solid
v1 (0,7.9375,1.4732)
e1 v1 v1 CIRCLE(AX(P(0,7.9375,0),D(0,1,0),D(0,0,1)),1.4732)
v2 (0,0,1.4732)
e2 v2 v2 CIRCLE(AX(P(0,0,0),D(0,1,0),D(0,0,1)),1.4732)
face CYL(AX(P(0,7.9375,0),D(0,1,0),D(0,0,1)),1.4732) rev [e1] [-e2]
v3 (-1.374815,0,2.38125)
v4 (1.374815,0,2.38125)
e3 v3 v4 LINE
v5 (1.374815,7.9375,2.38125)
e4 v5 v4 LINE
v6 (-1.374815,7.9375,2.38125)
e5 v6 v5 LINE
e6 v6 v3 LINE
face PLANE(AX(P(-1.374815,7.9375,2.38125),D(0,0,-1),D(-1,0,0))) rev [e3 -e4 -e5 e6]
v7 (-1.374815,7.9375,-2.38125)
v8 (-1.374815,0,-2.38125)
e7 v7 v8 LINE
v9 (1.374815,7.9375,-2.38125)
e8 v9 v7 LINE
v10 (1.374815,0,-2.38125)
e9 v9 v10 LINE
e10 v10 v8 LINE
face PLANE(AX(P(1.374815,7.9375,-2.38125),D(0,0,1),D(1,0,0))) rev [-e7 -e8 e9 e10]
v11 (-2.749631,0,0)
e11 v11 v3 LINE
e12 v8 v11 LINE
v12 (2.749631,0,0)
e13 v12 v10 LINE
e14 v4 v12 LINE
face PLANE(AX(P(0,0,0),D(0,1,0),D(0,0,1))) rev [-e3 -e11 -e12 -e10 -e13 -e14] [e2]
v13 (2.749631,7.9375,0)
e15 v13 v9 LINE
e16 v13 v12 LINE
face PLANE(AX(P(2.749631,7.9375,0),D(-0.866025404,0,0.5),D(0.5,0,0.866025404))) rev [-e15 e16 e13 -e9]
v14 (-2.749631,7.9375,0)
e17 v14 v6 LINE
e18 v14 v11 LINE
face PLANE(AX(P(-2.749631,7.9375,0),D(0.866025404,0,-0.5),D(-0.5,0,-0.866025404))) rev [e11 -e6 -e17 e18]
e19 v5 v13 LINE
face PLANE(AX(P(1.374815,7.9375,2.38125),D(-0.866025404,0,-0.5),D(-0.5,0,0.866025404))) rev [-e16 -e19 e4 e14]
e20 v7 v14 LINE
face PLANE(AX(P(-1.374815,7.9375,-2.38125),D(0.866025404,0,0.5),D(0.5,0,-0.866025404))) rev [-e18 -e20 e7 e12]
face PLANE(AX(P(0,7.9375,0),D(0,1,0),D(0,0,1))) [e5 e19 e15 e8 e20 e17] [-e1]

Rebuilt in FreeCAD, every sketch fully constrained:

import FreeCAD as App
import Part
import Sketcher
from FreeCAD import Vector
Q = App.Units.Quantity


def add_polygon(sketch, points):
    """Adds a closed chain of lines whose ends are joined by coincident constraints."""
    first, n = sketch.GeometryCount, len(points)
    for a, b in zip(points, points[1:] + points[:1]):
        sketch.addGeometry(Part.LineSegment(App.Vector(*a, 0), App.Vector(*b, 0)), False)
    for i in range(n):
        sketch.addConstraint(Sketcher.Constraint("Coincident", first + i, 2, first + (i + 1) % n, 1))

doc = App.newDocument("Part")
body = doc.addObject("PartDesign::Body", "Body")

# Sketch on XZ plane
sketch1 = body.newObject("Sketcher::SketchObject", "Sketch")
sketch1.AttachmentSupport = (doc.getObject("XZ_Plane"), [""])
sketch1.MapMode = "FlatFace"
add_polygon(sketch1, [(2.7, 0), (1.4, -2.4), (-1.4, -2.4), (-2.7, 0), (-1.4, 2.4), (1.4, 2.4)])  # lines 0-5
sketch1.addConstraint([
    Sketcher.Constraint("Horizontal", 1),
    Sketcher.Constraint("Horizontal", 4),
    Sketcher.Constraint("Symmetric", 0, 2, 3, 2, -1, 1),
    Sketcher.Constraint("Symmetric", 2, 2, 5, 2, -1, 1),
    Sketcher.Constraint("PointOnObject", 2, 2, -1),
    Sketcher.Constraint("Parallel", 2, 5),
    Sketcher.Constraint("Vertical", 1, 2, 3, 2),
    Sketcher.Constraint("Angle", 0, Q("-120 deg")),
    Sketcher.Constraint("DistanceY", 0, 2, -1, 1, Q("0.09375 in")),
    Sketcher.Constraint("DistanceX", 1, 2, 1, 1, 2.749631),
])
pad1 = body.newObject("PartDesign::Pad", "Pad")
pad1.Profile = sketch1
pad1.Length = Q("0.3125 in")
pad1.Reversed = True

# Sketch on XZ plane
sketch2 = body.newObject("Sketcher::SketchObject", "Sketch001")
sketch2.AttachmentSupport = (doc.getObject("XZ_Plane"), [""])
sketch2.MapMode = "FlatFace"
sketch2.AttachmentOffset = App.Placement(Vector(0, 0, -0.3125 * 25.4), App.Rotation())
sketch2.addGeometry(Part.Circle(Vector(0, 0, 0), Vector(0, 0, 1), 1.5), False)
sketch2.addConstraint([
    Sketcher.Constraint("Coincident", 0, 3, -1, 1),
    Sketcher.Constraint("Diameter", 0, Q("0.116 in")),
])
doc.recompute()
hole = body.newObject("PartDesign::Hole", "Hole")
hole.Profile = sketch2
hole.ThreadType = "None"
hole.Diameter = Q("0.116 in")
hole.DepthType = "Dimension"
hole.Depth = Q("1 in")
hole.DrillPoint = "Angled"
hole.DrillPointAngle = 118
hole.Reversed = True

doc.recompute()
